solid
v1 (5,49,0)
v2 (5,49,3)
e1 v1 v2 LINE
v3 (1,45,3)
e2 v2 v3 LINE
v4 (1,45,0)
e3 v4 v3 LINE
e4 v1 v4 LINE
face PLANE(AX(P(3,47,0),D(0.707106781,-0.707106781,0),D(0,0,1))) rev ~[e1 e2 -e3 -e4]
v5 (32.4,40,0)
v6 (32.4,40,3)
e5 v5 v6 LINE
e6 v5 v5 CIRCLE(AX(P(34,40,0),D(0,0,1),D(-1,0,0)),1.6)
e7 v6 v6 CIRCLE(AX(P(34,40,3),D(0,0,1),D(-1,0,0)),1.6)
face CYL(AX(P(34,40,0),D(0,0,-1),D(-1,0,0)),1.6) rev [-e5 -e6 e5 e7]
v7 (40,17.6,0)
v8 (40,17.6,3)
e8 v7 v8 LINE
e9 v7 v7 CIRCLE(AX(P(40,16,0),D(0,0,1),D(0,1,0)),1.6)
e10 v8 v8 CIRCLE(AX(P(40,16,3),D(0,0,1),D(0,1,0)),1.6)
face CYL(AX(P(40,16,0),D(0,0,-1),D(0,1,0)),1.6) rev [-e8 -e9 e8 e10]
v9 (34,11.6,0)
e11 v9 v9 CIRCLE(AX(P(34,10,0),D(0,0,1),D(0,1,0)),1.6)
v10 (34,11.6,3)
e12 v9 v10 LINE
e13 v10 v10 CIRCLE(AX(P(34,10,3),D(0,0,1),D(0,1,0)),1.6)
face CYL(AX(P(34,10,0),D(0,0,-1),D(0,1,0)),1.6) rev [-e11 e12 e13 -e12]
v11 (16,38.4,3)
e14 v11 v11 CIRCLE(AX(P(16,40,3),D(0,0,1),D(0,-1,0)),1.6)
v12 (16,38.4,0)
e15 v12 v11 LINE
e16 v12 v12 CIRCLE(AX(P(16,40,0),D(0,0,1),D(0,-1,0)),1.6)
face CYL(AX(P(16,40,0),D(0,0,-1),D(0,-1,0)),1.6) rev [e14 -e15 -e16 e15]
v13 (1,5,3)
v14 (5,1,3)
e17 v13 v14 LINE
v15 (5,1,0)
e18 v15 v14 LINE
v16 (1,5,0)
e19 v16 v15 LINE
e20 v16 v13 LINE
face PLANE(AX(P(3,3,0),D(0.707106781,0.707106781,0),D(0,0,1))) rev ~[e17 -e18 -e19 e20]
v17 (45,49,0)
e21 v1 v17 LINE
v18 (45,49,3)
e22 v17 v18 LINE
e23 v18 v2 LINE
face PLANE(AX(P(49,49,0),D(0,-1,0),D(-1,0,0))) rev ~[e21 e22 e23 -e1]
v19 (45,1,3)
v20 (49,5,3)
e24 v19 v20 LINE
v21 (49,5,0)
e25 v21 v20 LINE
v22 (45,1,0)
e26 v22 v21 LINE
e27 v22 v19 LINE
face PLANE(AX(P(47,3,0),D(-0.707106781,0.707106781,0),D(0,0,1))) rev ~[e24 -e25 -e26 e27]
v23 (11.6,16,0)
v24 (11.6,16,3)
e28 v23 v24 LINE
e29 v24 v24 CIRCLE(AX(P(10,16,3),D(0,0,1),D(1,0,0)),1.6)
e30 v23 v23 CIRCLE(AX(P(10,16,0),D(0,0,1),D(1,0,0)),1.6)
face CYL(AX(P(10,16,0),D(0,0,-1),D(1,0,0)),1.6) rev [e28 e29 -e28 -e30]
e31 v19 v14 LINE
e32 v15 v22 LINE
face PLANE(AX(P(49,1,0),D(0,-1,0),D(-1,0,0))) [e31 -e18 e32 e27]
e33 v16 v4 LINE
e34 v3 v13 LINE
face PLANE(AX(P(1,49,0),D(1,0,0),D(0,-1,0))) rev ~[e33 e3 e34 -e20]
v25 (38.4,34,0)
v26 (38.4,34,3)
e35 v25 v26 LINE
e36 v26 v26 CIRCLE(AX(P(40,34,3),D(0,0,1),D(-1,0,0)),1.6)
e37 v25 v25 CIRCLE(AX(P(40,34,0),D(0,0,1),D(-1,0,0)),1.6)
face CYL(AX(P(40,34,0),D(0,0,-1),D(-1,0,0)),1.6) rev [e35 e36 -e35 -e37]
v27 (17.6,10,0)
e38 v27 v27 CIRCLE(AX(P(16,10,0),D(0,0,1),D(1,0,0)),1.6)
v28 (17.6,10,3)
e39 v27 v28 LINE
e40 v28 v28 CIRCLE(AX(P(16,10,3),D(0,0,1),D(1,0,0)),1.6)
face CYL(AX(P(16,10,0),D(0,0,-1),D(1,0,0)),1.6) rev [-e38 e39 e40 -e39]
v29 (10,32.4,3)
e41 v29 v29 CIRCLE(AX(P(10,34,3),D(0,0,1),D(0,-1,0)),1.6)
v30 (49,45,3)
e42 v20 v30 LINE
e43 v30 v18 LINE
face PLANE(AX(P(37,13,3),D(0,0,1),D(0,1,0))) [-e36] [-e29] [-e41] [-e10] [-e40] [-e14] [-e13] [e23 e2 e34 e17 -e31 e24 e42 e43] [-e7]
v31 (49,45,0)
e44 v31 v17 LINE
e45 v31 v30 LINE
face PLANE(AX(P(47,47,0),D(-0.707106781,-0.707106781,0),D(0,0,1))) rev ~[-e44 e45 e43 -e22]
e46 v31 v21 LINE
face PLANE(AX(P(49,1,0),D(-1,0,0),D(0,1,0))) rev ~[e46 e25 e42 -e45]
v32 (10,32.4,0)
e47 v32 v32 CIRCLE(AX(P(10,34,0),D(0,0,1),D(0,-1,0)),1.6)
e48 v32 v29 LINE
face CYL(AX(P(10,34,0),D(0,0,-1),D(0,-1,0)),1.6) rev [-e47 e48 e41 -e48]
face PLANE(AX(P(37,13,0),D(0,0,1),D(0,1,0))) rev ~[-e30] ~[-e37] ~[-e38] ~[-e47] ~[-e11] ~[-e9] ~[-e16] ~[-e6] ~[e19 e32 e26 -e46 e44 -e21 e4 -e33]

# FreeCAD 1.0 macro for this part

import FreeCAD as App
import Part
import Sketcher
from FreeCAD import Vector


def edges_at(feature, points):
    """Names of the edges that pass closest to the given points."""
    edges = feature.Shape.Edges
    near = lambda p: min(range(len(edges)), key=lambda i: edges[i].distToShape(Part.Vertex(*p))[0])
    return sorted({f"Edge{near(p) + 1}" for p in points})

doc = App.newDocument("Part")
body = doc.addObject("PartDesign::Body", "Body")

sketch1 = body.newObject("Sketcher::SketchObject", "Sketch")
sketch1.AttachmentSupport = (doc.getObject("XY_Plane"), [""])
sketch1.MapMode = "FlatFace"
sketch1.addGeometry([
    Part.LineSegment(Vector(1, 25, 0), Vector(1, 1, 0)),
    Part.LineSegment(Vector(1, 1, 0), Vector(25, 1, 0)),
    Part.LineSegment(Vector(25, 1, 0), Vector(25, 25, 0)),
    Part.LineSegment(Vector(25, 25, 0), Vector(1, 25, 0)),
    Part.Circle(Vector(16, 10, 0), Vector(0, 0, 1), 1.6),
    Part.Circle(Vector(10, 16, 0), Vector(0, 0, 1), 1.6),
], False)
sketch1.addConstraint([
    Sketcher.Constraint("Coincident", 0, 2, 1, 1),
    Sketcher.Constraint("Coincident", 1, 2, 2, 1),
    Sketcher.Constraint("Coincident", 2, 2, 3, 1),
    Sketcher.Constraint("Coincident", 3, 2, 0, 1),
    Sketcher.Constraint("Vertical", 0),
    Sketcher.Constraint("Horizontal", 1),
    Sketcher.Constraint("Vertical", 2),
    Sketcher.Constraint("Horizontal", 3),
    Sketcher.Constraint("Equal", 4, 5),
    Sketcher.Constraint("Equal", 3, 0),
    Sketcher.Constraint("Diameter", 4, 3.2),
    Sketcher.Constraint("DistanceX", 1, 1, 1, 2, 24.0),
    Sketcher.Constraint("DistanceX", -1, 1, 4, 3, 16.0),
    Sketcher.Constraint("DistanceY", -1, 1, 4, 3, 10.0),
    Sketcher.Constraint("DistanceX", -1, 1, 5, 3, 10.0),
    Sketcher.Constraint("DistanceY", -1, 1, 5, 3, 16.0),
    Sketcher.Constraint("DistanceX", -1, 1, 0, 2, 1.0),
    Sketcher.Constraint("DistanceY", -1, 1, 0, 2, 1.0),
])
pad1 = body.newObject("PartDesign::Pad", "Pad")
pad1.Profile = sketch1
pad1.Length = 3
doc.recompute()

chamfer = body.newObject("PartDesign::Chamfer", "Chamfer")
chamfer.Base = (pad1, edges_at(pad1, [(1, 1, 1.5)]))
chamfer.Size = 4
body2 = doc.addObject("PartDesign::Body", "Body001")
doc.recompute()

body2.BaseFeature = body
doc.recompute()

body3 = doc.addObject("PartDesign::Body", "Body002")
body3.BaseFeature = body
body3.Placement = App.Placement(Vector(0, 50, 0), App.Rotation(Vector(0, 0, -1), 90))
boolean = body2.newObject("PartDesign::Boolean", "Boolean")
boolean.Type = "Fuse"
boolean.addObjects([body3])
doc.recompute()

body4 = doc.addObject("PartDesign::Body", "Body003")
body4.BaseFeature = body
body4.Placement = App.Placement(Vector(50, 50, 0), App.Rotation(Vector(0, 0, -1), 180))
boolean2 = body2.newObject("PartDesign::Boolean", "Boolean001")
boolean2.Type = "Fuse"
boolean2.addObjects([body4])
doc.recompute()

body.Placement = App.Placement(Vector(50, 0, 0), App.Rotation(Vector(0, 0, -1), 270))
boolean3 = body2.newObject("PartDesign::Boolean", "Boolean002")
boolean3.Type = "Fuse"
boolean3.addObjects([body])

doc.recompute()
